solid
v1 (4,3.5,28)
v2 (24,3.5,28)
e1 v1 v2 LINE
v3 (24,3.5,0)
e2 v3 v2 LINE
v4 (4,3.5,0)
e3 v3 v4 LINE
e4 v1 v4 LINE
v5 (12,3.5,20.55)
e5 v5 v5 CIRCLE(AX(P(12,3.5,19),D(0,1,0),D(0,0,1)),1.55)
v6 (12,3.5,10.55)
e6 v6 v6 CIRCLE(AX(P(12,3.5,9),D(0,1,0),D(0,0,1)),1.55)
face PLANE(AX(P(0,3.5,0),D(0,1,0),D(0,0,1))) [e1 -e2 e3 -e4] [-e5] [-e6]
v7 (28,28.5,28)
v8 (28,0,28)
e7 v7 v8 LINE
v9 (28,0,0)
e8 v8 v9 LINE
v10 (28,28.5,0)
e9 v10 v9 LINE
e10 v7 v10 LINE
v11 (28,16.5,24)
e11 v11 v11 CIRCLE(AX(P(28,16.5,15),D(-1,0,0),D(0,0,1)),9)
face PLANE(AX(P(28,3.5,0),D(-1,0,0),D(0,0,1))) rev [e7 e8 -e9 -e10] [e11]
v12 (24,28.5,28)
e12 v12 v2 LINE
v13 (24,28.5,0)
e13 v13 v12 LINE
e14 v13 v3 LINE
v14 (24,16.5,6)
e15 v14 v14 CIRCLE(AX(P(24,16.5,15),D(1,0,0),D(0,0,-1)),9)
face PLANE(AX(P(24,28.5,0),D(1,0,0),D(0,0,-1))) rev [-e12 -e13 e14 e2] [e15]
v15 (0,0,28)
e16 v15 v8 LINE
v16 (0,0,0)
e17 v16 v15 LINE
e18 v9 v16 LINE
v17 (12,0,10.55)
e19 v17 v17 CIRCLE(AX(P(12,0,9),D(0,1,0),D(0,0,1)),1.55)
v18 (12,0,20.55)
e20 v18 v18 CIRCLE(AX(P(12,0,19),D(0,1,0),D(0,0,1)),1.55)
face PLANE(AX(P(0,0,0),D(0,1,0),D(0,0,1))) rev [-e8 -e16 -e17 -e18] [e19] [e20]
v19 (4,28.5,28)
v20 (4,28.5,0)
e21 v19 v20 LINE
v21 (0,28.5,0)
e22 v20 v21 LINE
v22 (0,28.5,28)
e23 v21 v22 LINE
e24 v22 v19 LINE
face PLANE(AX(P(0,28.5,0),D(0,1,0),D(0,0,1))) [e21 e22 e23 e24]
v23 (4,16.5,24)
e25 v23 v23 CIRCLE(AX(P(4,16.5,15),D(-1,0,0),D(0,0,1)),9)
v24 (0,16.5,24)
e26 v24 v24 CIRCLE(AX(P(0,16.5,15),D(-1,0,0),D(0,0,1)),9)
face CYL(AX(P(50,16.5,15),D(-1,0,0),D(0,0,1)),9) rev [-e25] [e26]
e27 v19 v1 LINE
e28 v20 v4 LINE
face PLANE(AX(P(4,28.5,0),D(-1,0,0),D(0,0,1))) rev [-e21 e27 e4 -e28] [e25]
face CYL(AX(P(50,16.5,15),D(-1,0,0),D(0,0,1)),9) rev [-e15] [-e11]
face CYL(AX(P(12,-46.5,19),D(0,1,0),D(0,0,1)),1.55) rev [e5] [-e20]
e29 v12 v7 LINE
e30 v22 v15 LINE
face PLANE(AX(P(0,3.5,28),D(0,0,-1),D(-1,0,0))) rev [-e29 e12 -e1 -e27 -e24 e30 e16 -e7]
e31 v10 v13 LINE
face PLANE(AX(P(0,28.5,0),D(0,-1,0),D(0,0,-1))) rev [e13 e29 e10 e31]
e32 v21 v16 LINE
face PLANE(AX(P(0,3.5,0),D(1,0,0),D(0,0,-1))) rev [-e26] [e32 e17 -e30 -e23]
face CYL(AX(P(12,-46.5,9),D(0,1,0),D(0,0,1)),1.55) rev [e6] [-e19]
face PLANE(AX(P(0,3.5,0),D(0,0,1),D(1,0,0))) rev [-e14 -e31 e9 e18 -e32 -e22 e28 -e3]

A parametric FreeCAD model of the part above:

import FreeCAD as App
import Part
import Sketcher

V = App.Vector

doc = App.newDocument("Part")
body = doc.addObject("PartDesign::Body", "Body")

sketch1 = body.newObject("Sketcher::SketchObject", "Sketch")
sketch1.AttachmentSupport = (doc.getObject("XZ_Plane"), [""])
sketch1.MapMode = "FlatFace"
sketch1.addGeometry([
    Part.LineSegment(V(0, 0, 0), V(0, 28, 0)),
    Part.LineSegment(V(0, 28, 0), V(28, 28, 0)),
    Part.LineSegment(V(28, 28, 0), V(28, 0, 0)),
    Part.LineSegment(V(28, 0, 0), V(0, 0, 0)),
], False)
sketch1.addConstraint([
    Sketcher.Constraint("Coincident", 0, 2, 1, 1),
    Sketcher.Constraint("Coincident", 1, 2, 2, 1),
    Sketcher.Constraint("Coincident", 2, 2, 3, 1),
    Sketcher.Constraint("Coincident", 3, 2, 0, 1),
    Sketcher.Constraint("Vertical", 0),
    Sketcher.Constraint("Horizontal", 1),
    Sketcher.Constraint("Vertical", 2),
    Sketcher.Constraint("Horizontal", 3),
    Sketcher.Constraint("Coincident", 3, 2, -1, 1),
    Sketcher.Constraint("Equal", 3, 0),
    Sketcher.Constraint("DistanceX", 1, 1, 1, 2, 28.0),
])
pad1 = body.newObject("PartDesign::Pad", "Pad")
pad1.Profile = sketch1
pad1.Length = 3.5
pad1.Reversed = True

sketch2 = body.newObject("Sketcher::SketchObject", "Sketch001")
sketch2.AttachmentSupport = (doc.getObject("XZ_Plane"), [""])
sketch2.MapMode = "FlatFace"
sketch2.AttachmentOffset = App.Placement(V(0, 0, -3.5), App.Rotation())
sketch2.addGeometry([
    Part.LineSegment(V(0, 0, 0), V(0, 28, 0)),
    Part.LineSegment(V(0, 28, 0), V(4, 28, 0)),
    Part.LineSegment(V(4, 28, 0), V(4, 0, 0)),
    Part.LineSegment(V(4, 0, 0), V(0, 0, 0)),
    Part.LineSegment(V(24, 0, 0), V(24, 28, 0)),
    Part.LineSegment(V(24, 28, 0), V(28, 28, 0)),
    Part.LineSegment(V(28, 28, 0), V(28, 0, 0)),
    Part.LineSegment(V(28, 0, 0), V(24, 0, 0)),
], False)
sketch2.addConstraint([
    Sketcher.Constraint("Coincident", 0, 2, 1, 1),
    Sketcher.Constraint("Coincident", 1, 2, 2, 1),
    Sketcher.Constraint("Coincident", 2, 2, 3, 1),
    Sketcher.Constraint("Coincident", 3, 2, 0, 1),
    Sketcher.Constraint("Coincident", 4, 2, 5, 1),
    Sketcher.Constraint("Coincident", 5, 2, 6, 1),
    Sketcher.Constraint("Coincident", 6, 2, 7, 1),
    Sketcher.Constraint("Coincident", 7, 2, 4, 1),
    Sketcher.Constraint("Vertical", 0),
    Sketcher.Constraint("Horizontal", 1),
    Sketcher.Constraint("Vertical", 2),
    Sketcher.Constraint("Horizontal", 3),
    Sketcher.Constraint("Vertical", 4),
    Sketcher.Constraint("Horizontal", 5),
    Sketcher.Constraint("Vertical", 6),
    Sketcher.Constraint("Horizontal", 7),
    Sketcher.Constraint("Coincident", 3, 2, -1, 1),
    Sketcher.Constraint("PointOnObject", 6, 2, -1),
    Sketcher.Constraint("Horizontal", 1, 2, 4, 2),
    Sketcher.Constraint("Equal", 3, 5),
    Sketcher.Constraint("DistanceX", 1, 1, 1, 2, 4.0),
    Sketcher.Constraint("DistanceY", 0, 1, 0, 2, 28.0),
    Sketcher.Constraint("DistanceX", -1, 1, 4, 2, 24.0),
])
pad2 = body.newObject("PartDesign::Pad", "Pad001")
pad2.Profile = sketch2
pad2.Length = 25
pad2.Reversed = True

sketch3 = body.newObject("Sketcher::SketchObject", "Sketch002")
sketch3.AttachmentSupport = (doc.getObject("YZ_Plane"), [""])
sketch3.MapMode = "FlatFace"
sketch3.addGeometry(Part.Circle(V(16.5, 15, 0), V(0, 0, 1), 9), False)
sketch3.addConstraint([
    Sketcher.Constraint("Diameter", 0, 18.0),
    Sketcher.Constraint("DistanceY", -1, 1, 0, 3, 15.0),
    Sketcher.Constraint("DistanceX", -1, 1, 0, 3, 16.5),
])
pocket1 = body.newObject("PartDesign::Pocket", "Pocket")
pocket1.Profile = sketch3
pocket1.Length = 50
pocket1.Reversed = True

sketch4 = body.newObject("Sketcher::SketchObject", "Sketch003")
sketch4.AttachmentSupport = (doc.getObject("XZ_Plane"), [""])
sketch4.MapMode = "FlatFace"
sketch4.AttachmentOffset = App.Placement(V(0, 0, -3.5), App.Rotation())
sketch4.addGeometry([
    Part.Circle(V(12, 19, 0), V(0, 0, 1), 1.55),
    Part.Circle(V(12, 9, 0), V(0, 0, 1), 1.55),
], False)
sketch4.addConstraint([
    Sketcher.Constraint("Equal", 0, 1),
    Sketcher.Constraint("Vertical", 0, 3, 1, 3),
    Sketcher.Constraint("Diameter", 0, 3.1),
    Sketcher.Constraint("DistanceX", -1, 1, 0, 3, 12.0),
    Sketcher.Constraint("DistanceY", -1, 1, 0, 3, 19.0),
    Sketcher.Constraint("DistanceY", -1, 1, 1, 3, 9.0),
])
pocket2 = body.newObject("PartDesign::Pocket", "Pocket001")
pocket2.Profile = sketch4
pocket2.Length = 50
pocket2.Reversed = True

doc.recompute()
